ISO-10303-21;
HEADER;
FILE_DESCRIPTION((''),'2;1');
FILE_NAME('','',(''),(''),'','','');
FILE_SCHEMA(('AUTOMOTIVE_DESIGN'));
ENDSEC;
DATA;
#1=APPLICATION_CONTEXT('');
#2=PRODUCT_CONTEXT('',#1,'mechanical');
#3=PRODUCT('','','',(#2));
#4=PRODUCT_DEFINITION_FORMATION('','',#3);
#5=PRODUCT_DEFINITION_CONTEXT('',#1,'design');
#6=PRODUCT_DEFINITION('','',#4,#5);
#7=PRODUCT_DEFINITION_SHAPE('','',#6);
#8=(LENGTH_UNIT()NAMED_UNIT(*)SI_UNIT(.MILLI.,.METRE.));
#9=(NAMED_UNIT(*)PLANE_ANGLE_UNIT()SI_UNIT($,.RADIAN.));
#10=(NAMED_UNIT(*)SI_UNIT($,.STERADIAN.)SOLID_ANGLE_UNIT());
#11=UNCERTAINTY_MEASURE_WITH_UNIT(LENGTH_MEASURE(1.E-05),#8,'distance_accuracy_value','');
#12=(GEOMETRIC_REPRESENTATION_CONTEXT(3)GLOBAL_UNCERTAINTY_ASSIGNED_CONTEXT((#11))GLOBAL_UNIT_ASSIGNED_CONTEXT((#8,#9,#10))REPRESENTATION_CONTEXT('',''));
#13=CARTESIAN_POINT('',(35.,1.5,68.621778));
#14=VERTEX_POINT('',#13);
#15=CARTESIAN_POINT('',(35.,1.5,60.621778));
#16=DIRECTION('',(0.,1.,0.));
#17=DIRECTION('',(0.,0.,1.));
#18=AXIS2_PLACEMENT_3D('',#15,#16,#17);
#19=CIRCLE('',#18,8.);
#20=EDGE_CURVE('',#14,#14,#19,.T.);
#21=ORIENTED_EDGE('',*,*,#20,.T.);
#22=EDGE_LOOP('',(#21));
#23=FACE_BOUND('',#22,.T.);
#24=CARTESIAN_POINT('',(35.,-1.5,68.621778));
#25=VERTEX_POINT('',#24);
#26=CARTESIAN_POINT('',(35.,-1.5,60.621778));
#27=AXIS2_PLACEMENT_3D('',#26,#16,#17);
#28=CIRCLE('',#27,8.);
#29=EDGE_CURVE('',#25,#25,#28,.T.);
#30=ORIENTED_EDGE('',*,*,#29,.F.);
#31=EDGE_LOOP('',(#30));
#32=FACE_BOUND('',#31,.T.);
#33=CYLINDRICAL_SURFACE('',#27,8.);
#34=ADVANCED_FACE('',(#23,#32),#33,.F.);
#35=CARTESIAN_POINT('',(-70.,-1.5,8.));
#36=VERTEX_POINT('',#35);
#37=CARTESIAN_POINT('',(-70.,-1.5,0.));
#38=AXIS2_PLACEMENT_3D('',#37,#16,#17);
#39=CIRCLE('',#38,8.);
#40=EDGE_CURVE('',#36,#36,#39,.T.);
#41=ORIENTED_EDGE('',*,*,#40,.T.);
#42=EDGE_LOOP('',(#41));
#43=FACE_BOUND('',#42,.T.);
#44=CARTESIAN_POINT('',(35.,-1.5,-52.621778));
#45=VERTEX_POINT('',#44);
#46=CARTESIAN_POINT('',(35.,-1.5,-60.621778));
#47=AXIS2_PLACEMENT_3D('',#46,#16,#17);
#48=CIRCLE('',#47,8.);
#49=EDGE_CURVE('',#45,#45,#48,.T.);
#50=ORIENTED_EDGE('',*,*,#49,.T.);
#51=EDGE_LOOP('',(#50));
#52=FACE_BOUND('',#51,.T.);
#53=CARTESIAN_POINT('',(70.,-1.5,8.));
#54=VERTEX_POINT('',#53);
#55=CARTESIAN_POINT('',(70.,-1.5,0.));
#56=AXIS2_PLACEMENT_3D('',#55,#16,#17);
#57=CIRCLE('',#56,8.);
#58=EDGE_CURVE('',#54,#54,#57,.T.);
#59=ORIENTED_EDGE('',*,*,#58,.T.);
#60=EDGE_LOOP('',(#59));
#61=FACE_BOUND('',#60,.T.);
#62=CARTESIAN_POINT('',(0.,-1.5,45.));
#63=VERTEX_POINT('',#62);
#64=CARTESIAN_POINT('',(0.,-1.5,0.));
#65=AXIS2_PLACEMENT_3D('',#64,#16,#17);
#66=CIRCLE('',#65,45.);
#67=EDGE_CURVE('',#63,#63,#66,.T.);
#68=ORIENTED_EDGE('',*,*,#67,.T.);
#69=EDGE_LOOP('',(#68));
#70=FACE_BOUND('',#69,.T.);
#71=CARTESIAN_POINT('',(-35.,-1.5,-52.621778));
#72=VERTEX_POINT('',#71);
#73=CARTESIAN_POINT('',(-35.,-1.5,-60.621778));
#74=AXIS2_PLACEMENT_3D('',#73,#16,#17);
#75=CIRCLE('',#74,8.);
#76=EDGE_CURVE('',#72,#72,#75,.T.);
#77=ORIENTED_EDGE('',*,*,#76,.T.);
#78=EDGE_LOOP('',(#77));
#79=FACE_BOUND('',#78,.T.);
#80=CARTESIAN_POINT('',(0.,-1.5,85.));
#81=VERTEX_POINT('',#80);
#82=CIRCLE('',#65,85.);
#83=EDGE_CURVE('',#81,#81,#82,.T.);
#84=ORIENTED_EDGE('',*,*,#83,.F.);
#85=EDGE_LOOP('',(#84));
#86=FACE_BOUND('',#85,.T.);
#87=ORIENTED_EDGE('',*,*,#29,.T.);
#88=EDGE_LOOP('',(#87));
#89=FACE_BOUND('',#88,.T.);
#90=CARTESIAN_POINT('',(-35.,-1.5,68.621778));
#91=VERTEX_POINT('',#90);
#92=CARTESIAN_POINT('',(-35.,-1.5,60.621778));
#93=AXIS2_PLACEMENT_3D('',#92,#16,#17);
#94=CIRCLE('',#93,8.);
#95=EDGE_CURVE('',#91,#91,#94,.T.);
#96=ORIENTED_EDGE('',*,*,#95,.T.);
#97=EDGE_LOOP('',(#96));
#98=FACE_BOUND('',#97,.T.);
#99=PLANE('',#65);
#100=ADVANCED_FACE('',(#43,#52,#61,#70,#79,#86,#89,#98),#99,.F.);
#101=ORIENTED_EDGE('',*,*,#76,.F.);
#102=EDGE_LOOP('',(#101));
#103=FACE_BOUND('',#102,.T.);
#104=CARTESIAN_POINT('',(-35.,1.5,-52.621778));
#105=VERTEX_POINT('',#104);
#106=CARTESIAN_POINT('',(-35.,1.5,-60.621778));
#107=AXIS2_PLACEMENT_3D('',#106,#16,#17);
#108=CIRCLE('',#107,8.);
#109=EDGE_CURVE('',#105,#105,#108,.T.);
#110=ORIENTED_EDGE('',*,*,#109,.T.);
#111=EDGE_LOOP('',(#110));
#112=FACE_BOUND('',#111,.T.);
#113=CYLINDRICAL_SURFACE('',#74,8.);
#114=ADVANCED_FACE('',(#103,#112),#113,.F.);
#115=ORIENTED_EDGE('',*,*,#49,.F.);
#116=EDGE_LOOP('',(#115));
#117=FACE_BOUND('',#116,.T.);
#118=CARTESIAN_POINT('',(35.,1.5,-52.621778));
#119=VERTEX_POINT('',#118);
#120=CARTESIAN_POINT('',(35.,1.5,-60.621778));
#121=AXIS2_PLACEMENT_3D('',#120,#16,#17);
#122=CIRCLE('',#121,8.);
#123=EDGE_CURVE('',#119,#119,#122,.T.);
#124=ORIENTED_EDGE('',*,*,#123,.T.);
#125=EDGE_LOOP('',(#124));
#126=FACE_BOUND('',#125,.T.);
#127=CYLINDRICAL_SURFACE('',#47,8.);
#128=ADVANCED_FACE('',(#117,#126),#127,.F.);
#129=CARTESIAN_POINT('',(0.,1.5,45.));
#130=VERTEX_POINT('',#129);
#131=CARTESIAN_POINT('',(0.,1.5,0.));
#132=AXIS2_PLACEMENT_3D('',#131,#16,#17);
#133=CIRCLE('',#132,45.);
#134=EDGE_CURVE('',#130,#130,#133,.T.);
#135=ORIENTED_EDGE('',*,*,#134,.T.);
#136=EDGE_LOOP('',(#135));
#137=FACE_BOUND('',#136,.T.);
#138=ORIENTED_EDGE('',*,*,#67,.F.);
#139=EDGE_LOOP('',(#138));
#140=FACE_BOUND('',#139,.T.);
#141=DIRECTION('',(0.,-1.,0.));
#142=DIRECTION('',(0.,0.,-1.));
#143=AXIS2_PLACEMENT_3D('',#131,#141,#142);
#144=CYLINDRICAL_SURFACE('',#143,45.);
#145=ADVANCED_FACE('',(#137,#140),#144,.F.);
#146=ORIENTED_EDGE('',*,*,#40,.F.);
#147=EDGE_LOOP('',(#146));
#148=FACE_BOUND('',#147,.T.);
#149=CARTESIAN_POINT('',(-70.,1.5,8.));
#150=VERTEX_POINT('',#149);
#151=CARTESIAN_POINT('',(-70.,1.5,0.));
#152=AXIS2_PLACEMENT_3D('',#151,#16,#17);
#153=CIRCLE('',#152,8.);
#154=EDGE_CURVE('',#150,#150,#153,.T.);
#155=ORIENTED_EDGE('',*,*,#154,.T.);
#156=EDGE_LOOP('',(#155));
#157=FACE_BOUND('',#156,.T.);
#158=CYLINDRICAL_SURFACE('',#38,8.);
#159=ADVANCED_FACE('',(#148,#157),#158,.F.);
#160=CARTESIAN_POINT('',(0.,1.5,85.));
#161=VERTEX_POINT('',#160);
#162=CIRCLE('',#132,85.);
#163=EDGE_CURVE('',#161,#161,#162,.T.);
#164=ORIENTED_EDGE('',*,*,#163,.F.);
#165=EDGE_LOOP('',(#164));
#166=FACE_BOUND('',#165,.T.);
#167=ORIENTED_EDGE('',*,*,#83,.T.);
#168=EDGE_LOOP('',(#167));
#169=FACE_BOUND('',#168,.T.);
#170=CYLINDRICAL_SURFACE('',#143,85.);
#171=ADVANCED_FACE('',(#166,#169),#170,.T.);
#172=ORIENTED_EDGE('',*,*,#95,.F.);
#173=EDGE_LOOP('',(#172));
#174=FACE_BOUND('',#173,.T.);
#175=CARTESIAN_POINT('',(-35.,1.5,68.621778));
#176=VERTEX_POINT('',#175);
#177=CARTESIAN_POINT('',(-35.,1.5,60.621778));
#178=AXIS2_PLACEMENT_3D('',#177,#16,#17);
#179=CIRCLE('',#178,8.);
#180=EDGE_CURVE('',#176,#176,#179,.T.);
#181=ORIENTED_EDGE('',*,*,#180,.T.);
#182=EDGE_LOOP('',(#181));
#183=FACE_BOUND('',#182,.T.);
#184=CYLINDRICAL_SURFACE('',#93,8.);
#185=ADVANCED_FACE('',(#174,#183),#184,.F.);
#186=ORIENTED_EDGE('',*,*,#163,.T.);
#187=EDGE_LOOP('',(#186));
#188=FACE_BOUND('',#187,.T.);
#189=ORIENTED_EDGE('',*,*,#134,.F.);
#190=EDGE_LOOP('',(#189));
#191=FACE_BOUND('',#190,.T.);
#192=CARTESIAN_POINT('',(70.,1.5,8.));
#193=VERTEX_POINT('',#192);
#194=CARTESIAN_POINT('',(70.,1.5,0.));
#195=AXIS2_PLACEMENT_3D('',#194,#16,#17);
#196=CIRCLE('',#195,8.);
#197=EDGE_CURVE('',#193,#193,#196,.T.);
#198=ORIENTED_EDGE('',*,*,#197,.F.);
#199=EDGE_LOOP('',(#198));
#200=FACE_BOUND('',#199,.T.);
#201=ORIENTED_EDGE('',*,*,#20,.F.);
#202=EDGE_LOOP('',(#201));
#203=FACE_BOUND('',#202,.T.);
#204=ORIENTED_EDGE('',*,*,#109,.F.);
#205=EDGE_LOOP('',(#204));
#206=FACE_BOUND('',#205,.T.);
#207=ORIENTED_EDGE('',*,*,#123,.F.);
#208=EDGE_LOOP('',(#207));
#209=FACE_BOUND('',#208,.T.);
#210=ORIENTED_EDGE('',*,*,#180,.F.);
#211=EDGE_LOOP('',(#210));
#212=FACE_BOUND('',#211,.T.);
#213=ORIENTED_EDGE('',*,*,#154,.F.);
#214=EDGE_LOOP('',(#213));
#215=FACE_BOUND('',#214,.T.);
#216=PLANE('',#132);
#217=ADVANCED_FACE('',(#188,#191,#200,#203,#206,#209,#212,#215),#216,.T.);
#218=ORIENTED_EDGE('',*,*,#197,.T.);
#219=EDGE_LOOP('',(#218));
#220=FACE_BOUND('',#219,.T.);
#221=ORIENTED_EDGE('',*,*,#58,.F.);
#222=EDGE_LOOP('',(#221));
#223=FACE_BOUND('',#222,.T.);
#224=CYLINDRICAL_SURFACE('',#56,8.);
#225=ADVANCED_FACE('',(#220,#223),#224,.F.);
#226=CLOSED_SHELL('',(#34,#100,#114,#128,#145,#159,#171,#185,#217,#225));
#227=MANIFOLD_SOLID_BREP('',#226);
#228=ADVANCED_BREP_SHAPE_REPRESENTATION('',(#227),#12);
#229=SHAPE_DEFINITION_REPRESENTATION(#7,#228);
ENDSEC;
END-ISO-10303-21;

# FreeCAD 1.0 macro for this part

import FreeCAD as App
import Part
import Sketcher

doc = App.newDocument("Part")
params = doc.addObject("Spreadsheet::Sheet", "Params")
for row, (alias, value) in enumerate([
    ("sketch1_diameter", "170 mm"),
    ("sketch1_diameter2", "90 mm"),
    ("pad1_length", "3 mm"),
    ("sketch2_diameter", "16 mm"),
], start=1):
    params.set(f"A{row}", alias)
    params.set(f"B{row}", "=" + value)
    params.setAlias(f"B{row}", alias)

body = doc.addObject("PartDesign::Body", "Body")

sketch1 = body.newObject("Sketcher::SketchObject", "Sketch")
sketch1.AttachmentSupport = (doc.getObject("XZ_Plane"), [""])
sketch1.MapMode = "FlatFace"
sketch1.addGeometry(Part.Circle(App.Vector(0, 0, 0), App.Vector(0, 0, 1), 85), False)
sketch1.addGeometry(Part.Circle(App.Vector(0, 0, 0), App.Vector(0, 0, 1), 45), False)
sketch1.addConstraint(Sketcher.Constraint("Coincident", 0, 3, -1, 1))
sketch1.addConstraint(Sketcher.Constraint("Coincident", 1, 3, -1, 1))
sketch1.addConstraint(Sketcher.Constraint("Diameter", 0, 170.0))
sketch1.addConstraint(Sketcher.Constraint("Diameter", 1, 90.0))
sketch1.setExpression("Constraints[2]", "Params.sketch1_diameter")
sketch1.setExpression("Constraints[3]", "Params.sketch1_diameter2")
pad1 = body.newObject("PartDesign::Pad", "Pad")
pad1.Profile = sketch1
pad1.setExpression("Length", "Params.pad1_length")
pad1.Midplane = True

sketch2 = body.newObject("Sketcher::SketchObject", "Sketch001")
sketch2.AttachmentSupport = (doc.getObject("XZ_Plane"), [""])
sketch2.MapMode = "FlatFace"
sketch2.AttachmentOffset = App.Placement(App.Vector(0, 0, -1.5), App.Rotation())
sketch2.addGeometry(Part.Circle(App.Vector(70, 0, 0), App.Vector(0, 0, 1), 8), False)
sketch2.addGeometry(Part.Circle(App.Vector(35, 61, 0), App.Vector(0, 0, 1), 8), False)
sketch2.addGeometry(Part.Circle(App.Vector(-35, 61, 0), App.Vector(0, 0, 1), 8), False)
sketch2.addGeometry(Part.Circle(App.Vector(-70, 0, 0), App.Vector(0, 0, 1), 8), False)
sketch2.addGeometry(Part.Circle(App.Vector(-35, -61, 0), App.Vector(0, 0, 1), 8), False)
sketch2.addGeometry(Part.Circle(App.Vector(35, -61, 0), App.Vector(0, 0, 1), 8), False)
sketch2.addConstraint(Sketcher.Constraint("Equal", 0, 1))
sketch2.addConstraint(Sketcher.Constraint("Equal", 1, 2))
sketch2.addConstraint(Sketcher.Constraint("Equal", 2, 3))
sketch2.addConstraint(Sketcher.Constraint("Equal", 3, 4))
sketch2.addConstraint(Sketcher.Constraint("Equal", 4, 5))
sketch2.addConstraint(Sketcher.Constraint("Symmetric", 0, 3, 3, 3, -1, 1))
sketch2.addConstraint(Sketcher.Constraint("Symmetric", 1, 3, 4, 3, -1, 1))
sketch2.addConstraint(Sketcher.Constraint("Symmetric", 2, 3, 5, 3, -1, 1))
sketch2.addConstraint(Sketcher.Constraint("Symmetric", 1, 3, 2, 3, -2))
sketch2.addConstraint(Sketcher.Constraint("PointOnObject", 0, 3, -1))
sketch2.addConstraint(Sketcher.Constraint("Diameter", 0, 16.0))
sketch2.addConstraint(Sketcher.Constraint("DistanceX", -1, 1, 0, 3, 70.0))
sketch2.addConstraint(Sketcher.Constraint("DistanceX", -1, 1, 1, 3, 35.0))
sketch2.addConstraint(Sketcher.Constraint("DistanceY", -1, 1, 1, 3, 60.621778))
sketch2.setExpression("Constraints[10]", "Params.sketch2_diameter")
pocket1 = body.newObject("PartDesign::Pocket", "Pocket")
pocket1.Profile = sketch2
pocket1.Type = "ThroughAll"
pocket1.Midplane = True

doc.recompute()
